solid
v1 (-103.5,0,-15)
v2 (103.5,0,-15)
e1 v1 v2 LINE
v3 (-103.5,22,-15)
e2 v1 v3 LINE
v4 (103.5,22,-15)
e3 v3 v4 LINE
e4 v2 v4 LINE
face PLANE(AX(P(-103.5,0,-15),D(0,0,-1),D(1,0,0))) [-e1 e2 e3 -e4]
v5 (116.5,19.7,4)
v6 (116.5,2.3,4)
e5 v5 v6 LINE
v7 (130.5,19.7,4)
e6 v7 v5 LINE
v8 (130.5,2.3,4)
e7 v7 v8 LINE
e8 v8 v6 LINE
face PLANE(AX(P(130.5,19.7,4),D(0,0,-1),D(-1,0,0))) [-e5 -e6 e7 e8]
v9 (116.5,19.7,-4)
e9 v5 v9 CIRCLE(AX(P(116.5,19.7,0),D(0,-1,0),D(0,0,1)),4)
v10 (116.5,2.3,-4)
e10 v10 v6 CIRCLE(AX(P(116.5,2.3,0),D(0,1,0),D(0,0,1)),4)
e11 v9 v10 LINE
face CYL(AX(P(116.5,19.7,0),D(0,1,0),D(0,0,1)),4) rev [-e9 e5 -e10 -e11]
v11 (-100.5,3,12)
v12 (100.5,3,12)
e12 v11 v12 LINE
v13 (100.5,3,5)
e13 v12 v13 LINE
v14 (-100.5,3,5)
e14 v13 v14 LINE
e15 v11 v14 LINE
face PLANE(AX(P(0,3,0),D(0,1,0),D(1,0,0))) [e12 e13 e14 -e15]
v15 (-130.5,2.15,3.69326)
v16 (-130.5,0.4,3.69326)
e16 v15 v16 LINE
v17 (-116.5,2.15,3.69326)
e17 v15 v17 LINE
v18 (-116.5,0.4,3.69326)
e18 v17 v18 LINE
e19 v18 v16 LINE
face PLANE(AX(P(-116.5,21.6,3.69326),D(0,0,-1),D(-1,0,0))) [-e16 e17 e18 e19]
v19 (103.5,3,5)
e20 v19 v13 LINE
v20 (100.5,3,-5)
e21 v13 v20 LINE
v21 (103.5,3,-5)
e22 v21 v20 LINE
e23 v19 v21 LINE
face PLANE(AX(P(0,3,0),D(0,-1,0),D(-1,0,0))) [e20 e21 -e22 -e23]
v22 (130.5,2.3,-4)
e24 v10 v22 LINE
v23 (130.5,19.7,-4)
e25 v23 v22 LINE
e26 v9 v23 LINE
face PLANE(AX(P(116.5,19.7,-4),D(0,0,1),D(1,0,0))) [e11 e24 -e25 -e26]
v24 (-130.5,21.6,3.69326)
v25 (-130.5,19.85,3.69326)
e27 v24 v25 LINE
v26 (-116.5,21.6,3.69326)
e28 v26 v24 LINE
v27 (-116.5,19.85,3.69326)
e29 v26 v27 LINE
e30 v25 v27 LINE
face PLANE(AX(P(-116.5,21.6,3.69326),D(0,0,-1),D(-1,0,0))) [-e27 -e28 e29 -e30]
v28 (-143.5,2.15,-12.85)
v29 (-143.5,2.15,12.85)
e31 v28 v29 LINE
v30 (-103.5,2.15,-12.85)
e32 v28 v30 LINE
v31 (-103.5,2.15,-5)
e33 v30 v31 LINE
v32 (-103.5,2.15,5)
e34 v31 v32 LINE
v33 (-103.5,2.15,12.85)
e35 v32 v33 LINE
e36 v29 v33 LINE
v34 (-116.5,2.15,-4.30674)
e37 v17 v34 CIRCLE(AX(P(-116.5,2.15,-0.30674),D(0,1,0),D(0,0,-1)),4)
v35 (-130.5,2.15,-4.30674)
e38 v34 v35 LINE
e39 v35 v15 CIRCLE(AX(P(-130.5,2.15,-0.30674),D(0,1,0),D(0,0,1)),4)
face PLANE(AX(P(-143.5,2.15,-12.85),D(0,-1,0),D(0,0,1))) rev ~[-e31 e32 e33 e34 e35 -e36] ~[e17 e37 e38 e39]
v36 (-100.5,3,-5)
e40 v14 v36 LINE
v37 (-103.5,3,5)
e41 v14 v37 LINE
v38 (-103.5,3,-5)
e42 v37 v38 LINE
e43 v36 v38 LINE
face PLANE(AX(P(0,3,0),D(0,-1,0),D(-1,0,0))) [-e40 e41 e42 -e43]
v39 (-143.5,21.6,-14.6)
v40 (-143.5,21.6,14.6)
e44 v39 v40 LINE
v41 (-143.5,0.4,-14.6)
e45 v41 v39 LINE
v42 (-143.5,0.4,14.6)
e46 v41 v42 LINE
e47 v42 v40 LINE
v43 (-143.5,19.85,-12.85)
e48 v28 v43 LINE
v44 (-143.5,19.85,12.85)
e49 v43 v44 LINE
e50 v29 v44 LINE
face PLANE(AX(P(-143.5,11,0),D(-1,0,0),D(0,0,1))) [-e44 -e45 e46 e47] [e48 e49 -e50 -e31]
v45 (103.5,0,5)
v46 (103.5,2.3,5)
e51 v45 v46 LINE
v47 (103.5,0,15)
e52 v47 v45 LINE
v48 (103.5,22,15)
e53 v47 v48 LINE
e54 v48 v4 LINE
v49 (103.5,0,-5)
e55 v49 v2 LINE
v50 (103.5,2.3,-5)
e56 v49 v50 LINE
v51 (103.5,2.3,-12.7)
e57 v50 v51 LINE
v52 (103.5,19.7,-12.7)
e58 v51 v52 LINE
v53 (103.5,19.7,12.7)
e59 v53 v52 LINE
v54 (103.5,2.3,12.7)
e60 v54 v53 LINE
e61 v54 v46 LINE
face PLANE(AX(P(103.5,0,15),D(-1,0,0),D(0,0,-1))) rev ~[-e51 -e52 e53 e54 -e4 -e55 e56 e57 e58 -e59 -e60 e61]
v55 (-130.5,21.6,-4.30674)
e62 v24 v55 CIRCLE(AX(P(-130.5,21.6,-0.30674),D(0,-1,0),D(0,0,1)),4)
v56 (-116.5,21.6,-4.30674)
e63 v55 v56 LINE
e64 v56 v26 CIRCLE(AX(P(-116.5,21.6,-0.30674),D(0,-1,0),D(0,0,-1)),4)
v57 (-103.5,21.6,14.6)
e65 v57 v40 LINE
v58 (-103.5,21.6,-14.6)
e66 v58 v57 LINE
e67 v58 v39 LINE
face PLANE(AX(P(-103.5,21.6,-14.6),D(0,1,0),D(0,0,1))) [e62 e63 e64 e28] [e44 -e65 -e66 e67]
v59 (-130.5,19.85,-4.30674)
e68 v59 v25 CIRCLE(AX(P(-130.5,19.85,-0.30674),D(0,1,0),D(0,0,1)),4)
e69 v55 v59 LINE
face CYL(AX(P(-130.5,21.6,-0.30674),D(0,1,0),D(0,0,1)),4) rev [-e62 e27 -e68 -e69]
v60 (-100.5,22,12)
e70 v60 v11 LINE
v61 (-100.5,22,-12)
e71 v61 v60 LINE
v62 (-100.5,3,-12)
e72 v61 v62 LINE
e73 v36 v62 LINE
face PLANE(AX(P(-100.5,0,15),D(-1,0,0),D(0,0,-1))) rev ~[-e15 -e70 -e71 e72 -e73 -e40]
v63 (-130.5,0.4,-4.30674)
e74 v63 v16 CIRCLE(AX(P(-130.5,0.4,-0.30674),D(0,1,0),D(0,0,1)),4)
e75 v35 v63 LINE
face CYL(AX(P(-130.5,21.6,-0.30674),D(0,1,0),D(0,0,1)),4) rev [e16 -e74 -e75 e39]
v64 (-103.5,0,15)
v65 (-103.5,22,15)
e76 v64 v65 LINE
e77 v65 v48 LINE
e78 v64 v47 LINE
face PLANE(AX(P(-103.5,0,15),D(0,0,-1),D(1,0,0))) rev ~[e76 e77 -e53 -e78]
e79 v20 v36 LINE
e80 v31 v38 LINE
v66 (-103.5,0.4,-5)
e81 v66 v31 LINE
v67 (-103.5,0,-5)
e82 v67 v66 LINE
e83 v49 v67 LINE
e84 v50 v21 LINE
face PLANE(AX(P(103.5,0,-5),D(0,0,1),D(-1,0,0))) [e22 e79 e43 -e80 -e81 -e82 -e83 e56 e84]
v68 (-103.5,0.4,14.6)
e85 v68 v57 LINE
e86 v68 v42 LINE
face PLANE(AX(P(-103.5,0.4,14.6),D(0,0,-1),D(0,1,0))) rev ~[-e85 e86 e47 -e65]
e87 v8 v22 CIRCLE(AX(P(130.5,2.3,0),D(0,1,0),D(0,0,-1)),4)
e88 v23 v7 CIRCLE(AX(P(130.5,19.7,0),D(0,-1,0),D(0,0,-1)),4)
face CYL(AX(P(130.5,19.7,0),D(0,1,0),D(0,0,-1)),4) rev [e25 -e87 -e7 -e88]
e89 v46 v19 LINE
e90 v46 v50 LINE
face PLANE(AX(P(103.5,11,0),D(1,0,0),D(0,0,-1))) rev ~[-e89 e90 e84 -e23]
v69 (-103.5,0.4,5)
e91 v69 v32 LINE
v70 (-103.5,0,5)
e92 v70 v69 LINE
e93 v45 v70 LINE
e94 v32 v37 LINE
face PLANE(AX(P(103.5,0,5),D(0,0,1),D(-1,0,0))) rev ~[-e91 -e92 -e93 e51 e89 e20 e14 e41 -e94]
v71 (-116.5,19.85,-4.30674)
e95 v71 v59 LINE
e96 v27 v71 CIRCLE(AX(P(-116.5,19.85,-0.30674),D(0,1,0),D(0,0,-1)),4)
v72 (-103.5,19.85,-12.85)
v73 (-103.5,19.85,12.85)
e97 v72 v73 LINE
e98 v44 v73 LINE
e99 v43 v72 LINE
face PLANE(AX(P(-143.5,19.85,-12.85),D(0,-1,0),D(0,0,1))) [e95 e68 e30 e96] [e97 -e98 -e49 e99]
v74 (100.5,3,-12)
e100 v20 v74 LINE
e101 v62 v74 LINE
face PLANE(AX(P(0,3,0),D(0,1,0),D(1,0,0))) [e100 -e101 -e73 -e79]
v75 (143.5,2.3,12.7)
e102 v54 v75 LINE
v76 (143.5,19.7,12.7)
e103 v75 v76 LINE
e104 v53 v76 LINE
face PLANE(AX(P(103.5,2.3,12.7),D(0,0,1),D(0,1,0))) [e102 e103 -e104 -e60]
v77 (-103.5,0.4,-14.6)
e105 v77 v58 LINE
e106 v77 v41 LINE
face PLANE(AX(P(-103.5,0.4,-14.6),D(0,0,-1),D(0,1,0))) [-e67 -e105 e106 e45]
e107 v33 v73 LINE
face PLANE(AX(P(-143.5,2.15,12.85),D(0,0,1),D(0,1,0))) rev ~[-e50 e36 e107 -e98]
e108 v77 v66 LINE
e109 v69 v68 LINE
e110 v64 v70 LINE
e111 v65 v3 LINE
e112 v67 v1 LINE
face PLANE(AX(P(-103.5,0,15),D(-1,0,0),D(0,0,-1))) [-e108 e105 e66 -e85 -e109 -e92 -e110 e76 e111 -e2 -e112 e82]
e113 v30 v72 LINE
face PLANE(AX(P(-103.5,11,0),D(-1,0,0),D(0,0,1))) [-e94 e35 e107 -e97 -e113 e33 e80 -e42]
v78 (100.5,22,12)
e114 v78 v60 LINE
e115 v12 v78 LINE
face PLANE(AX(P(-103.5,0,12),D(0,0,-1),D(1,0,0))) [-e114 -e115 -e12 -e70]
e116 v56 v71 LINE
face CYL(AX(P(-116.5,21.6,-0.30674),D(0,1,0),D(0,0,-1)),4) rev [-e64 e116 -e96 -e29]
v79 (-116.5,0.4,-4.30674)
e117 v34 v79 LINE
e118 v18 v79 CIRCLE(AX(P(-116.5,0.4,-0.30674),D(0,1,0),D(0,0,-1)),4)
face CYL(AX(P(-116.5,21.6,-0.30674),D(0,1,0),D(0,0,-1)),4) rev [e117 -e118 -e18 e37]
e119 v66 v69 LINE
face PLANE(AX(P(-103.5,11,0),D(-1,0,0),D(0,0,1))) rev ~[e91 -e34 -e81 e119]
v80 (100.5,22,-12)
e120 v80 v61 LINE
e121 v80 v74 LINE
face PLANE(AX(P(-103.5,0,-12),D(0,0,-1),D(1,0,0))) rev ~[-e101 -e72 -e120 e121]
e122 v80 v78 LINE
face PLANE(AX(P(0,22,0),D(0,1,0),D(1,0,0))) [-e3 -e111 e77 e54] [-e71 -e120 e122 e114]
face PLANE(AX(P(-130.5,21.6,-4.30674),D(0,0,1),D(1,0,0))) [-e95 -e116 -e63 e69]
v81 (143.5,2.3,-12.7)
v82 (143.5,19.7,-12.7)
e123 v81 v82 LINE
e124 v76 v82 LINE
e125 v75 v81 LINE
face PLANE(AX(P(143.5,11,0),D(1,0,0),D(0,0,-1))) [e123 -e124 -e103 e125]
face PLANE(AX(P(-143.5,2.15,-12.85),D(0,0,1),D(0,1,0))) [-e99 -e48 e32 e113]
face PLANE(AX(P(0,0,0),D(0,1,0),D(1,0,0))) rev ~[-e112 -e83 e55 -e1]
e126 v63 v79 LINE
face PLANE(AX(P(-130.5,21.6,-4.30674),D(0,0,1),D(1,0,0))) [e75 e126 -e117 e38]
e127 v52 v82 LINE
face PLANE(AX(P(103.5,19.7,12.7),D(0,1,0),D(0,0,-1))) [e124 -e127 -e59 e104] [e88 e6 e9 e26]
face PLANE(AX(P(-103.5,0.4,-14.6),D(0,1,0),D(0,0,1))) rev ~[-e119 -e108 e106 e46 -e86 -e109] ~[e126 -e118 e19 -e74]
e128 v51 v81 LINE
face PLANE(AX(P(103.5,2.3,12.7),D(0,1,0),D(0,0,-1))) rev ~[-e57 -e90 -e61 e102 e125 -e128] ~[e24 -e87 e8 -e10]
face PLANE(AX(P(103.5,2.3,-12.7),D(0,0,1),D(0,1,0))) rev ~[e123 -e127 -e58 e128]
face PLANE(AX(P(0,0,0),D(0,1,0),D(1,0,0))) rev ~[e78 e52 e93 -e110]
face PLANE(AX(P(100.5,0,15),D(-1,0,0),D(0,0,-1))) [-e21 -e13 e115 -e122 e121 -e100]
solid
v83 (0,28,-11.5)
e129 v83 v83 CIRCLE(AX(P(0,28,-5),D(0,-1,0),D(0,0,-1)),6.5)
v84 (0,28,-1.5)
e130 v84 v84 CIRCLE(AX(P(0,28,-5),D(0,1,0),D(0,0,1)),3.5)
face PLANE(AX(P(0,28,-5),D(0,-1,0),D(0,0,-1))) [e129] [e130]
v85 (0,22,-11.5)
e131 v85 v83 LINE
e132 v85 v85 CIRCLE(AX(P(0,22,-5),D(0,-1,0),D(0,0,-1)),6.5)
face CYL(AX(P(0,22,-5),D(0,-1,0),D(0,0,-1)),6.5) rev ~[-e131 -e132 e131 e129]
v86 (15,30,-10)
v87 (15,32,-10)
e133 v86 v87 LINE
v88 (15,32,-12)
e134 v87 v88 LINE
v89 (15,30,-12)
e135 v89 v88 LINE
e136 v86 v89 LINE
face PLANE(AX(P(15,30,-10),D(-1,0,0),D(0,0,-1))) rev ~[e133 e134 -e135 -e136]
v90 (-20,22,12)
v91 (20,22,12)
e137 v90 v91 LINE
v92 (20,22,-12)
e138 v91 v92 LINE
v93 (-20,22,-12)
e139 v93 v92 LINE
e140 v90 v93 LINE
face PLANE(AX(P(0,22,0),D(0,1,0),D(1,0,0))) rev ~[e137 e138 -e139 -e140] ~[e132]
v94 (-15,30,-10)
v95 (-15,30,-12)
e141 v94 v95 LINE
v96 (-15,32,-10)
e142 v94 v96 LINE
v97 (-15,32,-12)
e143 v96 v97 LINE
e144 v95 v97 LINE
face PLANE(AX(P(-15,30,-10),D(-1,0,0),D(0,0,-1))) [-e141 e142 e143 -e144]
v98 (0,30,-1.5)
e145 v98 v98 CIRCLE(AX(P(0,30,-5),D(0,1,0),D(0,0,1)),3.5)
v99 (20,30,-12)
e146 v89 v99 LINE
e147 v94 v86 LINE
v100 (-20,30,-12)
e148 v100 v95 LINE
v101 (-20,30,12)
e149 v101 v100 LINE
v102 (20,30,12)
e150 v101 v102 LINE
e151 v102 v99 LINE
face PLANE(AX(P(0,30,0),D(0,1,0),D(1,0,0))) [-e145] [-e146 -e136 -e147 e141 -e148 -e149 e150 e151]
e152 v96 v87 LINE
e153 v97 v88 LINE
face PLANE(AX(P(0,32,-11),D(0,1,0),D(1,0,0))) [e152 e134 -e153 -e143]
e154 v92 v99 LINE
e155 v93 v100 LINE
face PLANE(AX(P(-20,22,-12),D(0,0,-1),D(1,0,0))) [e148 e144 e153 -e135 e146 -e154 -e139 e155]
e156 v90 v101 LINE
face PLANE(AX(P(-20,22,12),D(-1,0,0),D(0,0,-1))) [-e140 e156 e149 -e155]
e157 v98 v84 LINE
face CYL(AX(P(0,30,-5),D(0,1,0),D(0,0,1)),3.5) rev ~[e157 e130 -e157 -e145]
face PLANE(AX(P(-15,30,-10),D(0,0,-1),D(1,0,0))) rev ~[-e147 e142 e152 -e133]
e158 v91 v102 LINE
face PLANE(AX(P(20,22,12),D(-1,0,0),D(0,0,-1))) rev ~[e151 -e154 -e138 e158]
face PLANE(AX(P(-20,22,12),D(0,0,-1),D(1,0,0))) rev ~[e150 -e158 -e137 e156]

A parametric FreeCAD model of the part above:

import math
import FreeCAD as App
import Part
import Sketcher

V = App.Vector
Q = App.Units.Quantity


def faces_at(feature, points):
    """Names of the faces that lie closest to the given points."""
    faces = feature.Shape.Faces
    near = lambda p: min(range(len(faces)), key=lambda i: faces[i].distToShape(Part.Vertex(*p))[0])
    return sorted({f"Face{near(p) + 1}" for p in points})


def add_polygon(sketch, points):
    """Adds a closed chain of lines whose ends are joined by coincident constraints."""
    first, n = sketch.GeometryCount, len(points)
    for a, b in zip(points, points[1:] + points[:1]):
        sketch.addGeometry(Part.LineSegment(App.Vector(*a, 0), App.Vector(*b, 0)), False)
    for i in range(n):
        sketch.addConstraint(Sketcher.Constraint("Coincident", first + i, 2, first + (i + 1) % n, 1))

doc = App.newDocument("Part")
body = doc.addObject("PartDesign::Body", "Body")

# Sketch on XZ plane
sketch1 = doc.addObject("Sketcher::SketchObject", "Sketch")
body.addObject(sketch1)
sketch1.AttachmentSupport = (doc.XZ_Plane, [""])
sketch1.MapMode = "FlatFace"
add_polygon(sketch1, [(-104, -15), (-104, 15), (104, 15), (104, -15)])  # lines 0-3
sketch1.addConstraint(Sketcher.Constraint("Vertical", 0))
sketch1.addConstraint(Sketcher.Constraint("Horizontal", 1))
sketch1.addConstraint(Sketcher.Constraint("Vertical", 2))
sketch1.addConstraint(Sketcher.Constraint("Horizontal", 3))
sketch1.addConstraint(Sketcher.Constraint("Symmetric", 0, 2, 2, 2, -1, 1))
sketch1.addConstraint(Sketcher.Constraint("DistanceX", 1, 1, 1, 2, Q("207 mm")))
sketch1.addConstraint(Sketcher.Constraint("DistanceY", 0, 1, 0, 2, Q("30 mm")))
pad1 = doc.addObject("PartDesign::Pad", "Pad")
body.addObject(pad1)
pad1.Profile = sketch1
pad1.Length = 22
pad1.Reversed = True
doc.recompute()

thickness = doc.addObject("PartDesign::Thickness", "Thickness")
body.addObject(thickness)
thickness.Base = (pad1, faces_at(pad1, [(0, 22, 0)]))
thickness.Value = 3
thickness.Reversed = True
thickness.Join = "Intersection"

# Sketch on XZ plane
sketch2 = doc.addObject("Sketcher::SketchObject", "Sketch001")
body.addObject(sketch2)
sketch2.AttachmentSupport = (doc.XZ_Plane, [""])
sketch2.MapMode = "FlatFace"
add_polygon(sketch2, [(104, -5), (104, 5), (-104, 5), (-104, -5)])  # lines 0-3
sketch2.addConstraint(Sketcher.Constraint("Vertical", 0))
sketch2.addConstraint(Sketcher.Constraint("Horizontal", 1))
sketch2.addConstraint(Sketcher.Constraint("Vertical", 2))
sketch2.addConstraint(Sketcher.Constraint("Horizontal", 3))
sketch2.addConstraint(Sketcher.Constraint("Symmetric", 0, 2, 2, 2, -1, 1))
sketch2.addConstraint(Sketcher.Constraint("DistanceX", 1, 2, 1, 1, Q("207 mm")))
sketch2.addConstraint(Sketcher.Constraint("DistanceY", 0, 1, 0, 2, Q("10 mm")))
pocket1 = doc.addObject("PartDesign::Pocket", "Pocket")
body.addObject(pocket1)
pocket1.Profile = sketch2
pocket1.Length = 3

# Sketch on YZ plane
sketch3 = doc.addObject("Sketcher::SketchObject", "Sketch002")
body.addObject(sketch3)
sketch3.AttachmentSupport = (doc.YZ_Plane, [""])
sketch3.MapMode = "FlatFace"
sketch3.AttachmentOffset = App.Placement(V(0, 0, -103.5), App.Rotation())
add_polygon(sketch3, [(22, -15), (0, -15), (0, 15), (22, 15)])  # lines 0-3
sketch3.addConstraint(Sketcher.Constraint("Horizontal", 0))
sketch3.addConstraint(Sketcher.Constraint("Vertical", 1))
sketch3.addConstraint(Sketcher.Constraint("Horizontal", 2))
sketch3.addConstraint(Sketcher.Constraint("Vertical", 3))
sketch3.addConstraint(Sketcher.Constraint("DistanceX", 0, 2, 0, 1, Q("21.2 mm")))
sketch3.addConstraint(Sketcher.Constraint("DistanceY", 1, 1, 1, 2, Q("29.2 mm")))
sketch3.addConstraint(Sketcher.Constraint("DistanceX", -1, 1, 0, 2, Q("0.4 mm")))
sketch3.addConstraint(Sketcher.Constraint("DistanceY", 0, 2, -1, 1, Q("14.6 mm")))
pad2 = doc.addObject("PartDesign::Pad", "Pad001")
body.addObject(pad2)
pad2.Profile = sketch3
pad2.Length = 40
pad2.Reversed = True

# Sketch on YZ plane
sketch4 = doc.addObject("Sketcher::SketchObject", "Sketch003")
body.addObject(sketch4)
sketch4.AttachmentSupport = (doc.YZ_Plane, [""])
sketch4.MapMode = "FlatFace"
sketch4.AttachmentOffset = App.Placement(V(0, 0, -143.5), App.Rotation())
add_polygon(sketch4, [(20, -13), (2, -13), (2, 13), (20, 13)])  # lines 0-3
sketch4.addConstraint(Sketcher.Constraint("Horizontal", 0))
sketch4.addConstraint(Sketcher.Constraint("Vertical", 1))
sketch4.addConstraint(Sketcher.Constraint("Horizontal", 2))
sketch4.addConstraint(Sketcher.Constraint("Vertical", 3))
sketch4.addConstraint(Sketcher.Constraint("DistanceX", 0, 2, 0, 1, Q("17.7 mm")))
sketch4.addConstraint(Sketcher.Constraint("DistanceY", 1, 1, 1, 2, Q("25.7 mm")))
sketch4.addConstraint(Sketcher.Constraint("DistanceX", -1, 1, 0, 2, Q("2.15 mm")))
sketch4.addConstraint(Sketcher.Constraint("DistanceY", 0, 2, -1, 1, Q("12.85 mm")))
pocket2 = doc.addObject("PartDesign::Pocket", "Pocket001")
body.addObject(pocket2)
pocket2.Profile = sketch4
pocket2.Length = 40
pocket2.Reversed = True

# Sketch on XZ plane
sketch5 = doc.addObject("Sketcher::SketchObject", "Sketch004")
body.addObject(sketch5)
sketch5.AttachmentSupport = (doc.XZ_Plane, [""])
sketch5.MapMode = "FlatFace"
sketch5.AttachmentOffset = App.Placement(V(0, 0, -21.6), App.Rotation())
sketch5.addGeometry(Part.LineSegment(V(-116.5, -4.3, 0), V(-130.5, -4.3, 0)), False)
sketch5.addGeometry(Part.ArcOfCircle(Part.Circle(V(-130.5, -0.3, 0), V(0, 0, 1), 4), math.radians(90), math.radians(270)), False)
sketch5.addGeometry(Part.LineSegment(V(-130.5, 3.7, 0), V(-116.5, 3.7, 0)), False)
sketch5.addGeometry(Part.ArcOfCircle(Part.Circle(V(-116.5, -0.3, 0), V(0, 0, 1), 4), math.radians(-90), math.radians(90)), False)
sketch5.addConstraint(Sketcher.Constraint("Tangent", 0, 2, 1, 2))
sketch5.addConstraint(Sketcher.Constraint("Tangent", 1, 1, 2, 1))
sketch5.addConstraint(Sketcher.Constraint("Tangent", 2, 2, 3, 2))
sketch5.addConstraint(Sketcher.Constraint("Tangent", 3, 1, 0, 1))
sketch5.addConstraint(Sketcher.Constraint("Horizontal", 0))
sketch5.addConstraint(Sketcher.Constraint("Horizontal", 2))
sketch5.addConstraint(Sketcher.Constraint("Radius", 1, Q("4 mm")))
sketch5.addConstraint(Sketcher.Constraint("DistanceX", 0, 2, 0, 1, Q("14 mm")))
sketch5.addConstraint(Sketcher.Constraint("DistanceX", 1, 3, -1, 1, Q("130.5 mm")))
sketch5.addConstraint(Sketcher.Constraint("DistanceY", 1, 3, -1, 1, Q("0.30674 mm")))
pocket3 = doc.addObject("PartDesign::Pocket", "Pocket002")
body.addObject(pocket3)
pocket3.Profile = sketch5
pocket3.Type = "ThroughAll"
pocket3.Reversed = True

# Sketch on YZ plane
sketch6 = doc.addObject("Sketcher::SketchObject", "Sketch005")
body.addObject(sketch6)
sketch6.AttachmentSupport = (doc.YZ_Plane, [""])
sketch6.MapMode = "FlatFace"
sketch6.AttachmentOffset = App.Placement(V(0, 0, 103.5), App.Rotation())
add_polygon(sketch6, [(20, 13), (2, 13), (2, -13), (20, -13)])  # lines 0-3
sketch6.addConstraint(Sketcher.Constraint("Horizontal", 0))
sketch6.addConstraint(Sketcher.Constraint("Vertical", 1))
sketch6.addConstraint(Sketcher.Constraint("Horizontal", 2))
sketch6.addConstraint(Sketcher.Constraint("Vertical", 3))
sketch6.addConstraint(Sketcher.Constraint("DistanceX", 0, 2, 0, 1, Q("17.4 mm")))
sketch6.addConstraint(Sketcher.Constraint("DistanceY", 1, 2, 1, 1, Q("25.4 mm")))
sketch6.addConstraint(Sketcher.Constraint("DistanceX", -1, 1, 0, 2, Q("2.3 mm")))
sketch6.addConstraint(Sketcher.Constraint("DistanceY", -1, 1, 0, 2, Q("12.7 mm")))
pad3 = doc.addObject("PartDesign::Pad", "Pad002")
body.addObject(pad3)
pad3.Profile = sketch6
pad3.Length = 40

# Sketch on XZ plane
sketch7 = doc.addObject("Sketcher::SketchObject", "Sketch006")
body.addObject(sketch7)
sketch7.AttachmentSupport = (doc.XZ_Plane, [""])
sketch7.MapMode = "FlatFace"
sketch7.AttachmentOffset = App.Placement(V(0, 0, -19.7), App.Rotation())
sketch7.addGeometry(Part.LineSegment(V(130.5, -4, 0), V(116.5, -4, 0)), False)
sketch7.addGeometry(Part.ArcOfCircle(Part.Circle(V(116.5, 0, 0), V(0, 0, 1), 4), math.radians(90), math.radians(270)), False)
sketch7.addGeometry(Part.LineSegment(V(116.5, 4, 0), V(130.5, 4, 0)), False)
sketch7.addGeometry(Part.ArcOfCircle(Part.Circle(V(130.5, 0, 0), V(0, 0, 1), 4), math.radians(-90), math.radians(90)), False)
sketch7.addConstraint(Sketcher.Constraint("Tangent", 0, 2, 1, 2))
sketch7.addConstraint(Sketcher.Constraint("Tangent", 1, 1, 2, 1))
sketch7.addConstraint(Sketcher.Constraint("Tangent", 2, 2, 3, 2))
sketch7.addConstraint(Sketcher.Constraint("Tangent", 3, 1, 0, 1))
sketch7.addConstraint(Sketcher.Constraint("Horizontal", 0))
sketch7.addConstraint(Sketcher.Constraint("Horizontal", 2))
sketch7.addConstraint(Sketcher.Constraint("PointOnObject", 1, 3, -1))
sketch7.addConstraint(Sketcher.Constraint("Radius", 1, Q("4 mm")))
sketch7.addConstraint(Sketcher.Constraint("DistanceX", 0, 2, 0, 1, Q("14 mm")))
sketch7.addConstraint(Sketcher.Constraint("DistanceX", -1, 1, 1, 3, Q("116.5 mm")))
pocket4 = doc.addObject("PartDesign::Pocket", "Pocket003")
body.addObject(pocket4)
pocket4.Profile = sketch7
pocket4.Type = "ThroughAll"
pocket4.Reversed = True
body2 = doc.addObject("PartDesign::Body", "Body001")

# Sketch on XZ plane
sketch8 = doc.addObject("Sketcher::SketchObject", "Sketch007")
body2.addObject(sketch8)
sketch8.AttachmentSupport = (doc.getObject("XZ_Plane001"), [""])
sketch8.MapMode = "FlatFace"
sketch8.AttachmentOffset = App.Placement(V(0, 0, -22), App.Rotation())
add_polygon(sketch8, [(-20, -12), (-20, 12), (20, 12), (20, -12)])  # lines 0-3
sketch8.addConstraint(Sketcher.Constraint("Vertical", 0))
sketch8.addConstraint(Sketcher.Constraint("Horizontal", 1))
sketch8.addConstraint(Sketcher.Constraint("Vertical", 2))
sketch8.addConstraint(Sketcher.Constraint("Horizontal", 3))
sketch8.addConstraint(Sketcher.Constraint("Symmetric", 0, 2, 2, 2, -1, 1))
sketch8.addConstraint(Sketcher.Constraint("DistanceX", 1, 1, 1, 2, Q("40 mm")))
sketch8.addConstraint(Sketcher.Constraint("DistanceY", 0, 1, 0, 2, Q("24 mm")))
pad4 = doc.addObject("PartDesign::Pad", "Pad003")
body2.addObject(pad4)
pad4.Profile = sketch8
pad4.Length = 8
pad4.Reversed = True

# Sketch on XZ plane
sketch9 = doc.addObject("Sketcher::SketchObject", "Sketch008")
body2.addObject(sketch9)
sketch9.AttachmentSupport = (doc.getObject("XZ_Plane001"), [""])
sketch9.MapMode = "FlatFace"
sketch9.AttachmentOffset = App.Placement(V(0, 0, -30), App.Rotation())
sketch9.addGeometry(Part.Circle(V(0, -5, 0), V(0, 0, 1), 3.5), False)
sketch9.addConstraint(Sketcher.Constraint("PointOnObject", 0, 3, -2))
sketch9.addConstraint(Sketcher.Constraint("Diameter", 0, Q("7 mm")))
sketch9.addConstraint(Sketcher.Constraint("DistanceY", 0, 3, -1, 1, Q("5 mm")))
pocket5 = doc.addObject("PartDesign::Pocket", "Pocket004")
body2.addObject(pocket5)
pocket5.Profile = sketch9
pocket5.Length = 8
pocket5.Reversed = True

# Sketch on XZ plane
sketch10 = doc.addObject("Sketcher::SketchObject", "Sketch009")
body2.addObject(sketch10)
sketch10.AttachmentSupport = (doc.getObject("XZ_Plane001"), [""])
sketch10.MapMode = "FlatFace"
sketch10.AttachmentOffset = App.Placement(V(0, 0, -22), App.Rotation())
sketch10.addGeometry(Part.Circle(V(0, -5, 0), V(0, 0, 1), 6), False)
sketch10.addConstraint(Sketcher.Constraint("PointOnObject", 0, 3, -2))
sketch10.addConstraint(Sketcher.Constraint("Diameter", 0, Q("13 mm")))
sketch10.addConstraint(Sketcher.Constraint("DistanceY", 0, 3, -1, 1, Q("5 mm")))
pocket6 = doc.addObject("PartDesign::Pocket", "Pocket005")
body2.addObject(pocket6)
pocket6.Profile = sketch10
pocket6.Length = 6

# Sketch on XZ plane
sketch11 = doc.addObject("Sketcher::SketchObject", "Sketch010")
body2.addObject(sketch11)
sketch11.AttachmentSupport = (doc.getObject("XZ_Plane001"), [""])
sketch11.MapMode = "FlatFace"
sketch11.AttachmentOffset = App.Placement(V(0, 0, -30), App.Rotation())
add_polygon(sketch11, [(-15, -12), (-15, -10), (15, -10), (15, -12)])  # lines 0-3
sketch11.addConstraint(Sketcher.Constraint("Vertical", 0))
sketch11.addConstraint(Sketcher.Constraint("Horizontal", 1))
sketch11.addConstraint(Sketcher.Constraint("Vertical", 2))
sketch11.addConstraint(Sketcher.Constraint("Horizontal", 3))
sketch11.addConstraint(Sketcher.Constraint("DistanceX", 1, 1, 1, 2, Q("30 mm")))
sketch11.addConstraint(Sketcher.Constraint("DistanceY", 0, 1, 0, 2, Q("2 mm")))
sketch11.addConstraint(Sketcher.Constraint("DistanceX", 0, 2, -1, 1, Q("15 mm")))
sketch11.addConstraint(Sketcher.Constraint("DistanceY", 0, 2, -1, 1, Q("10 mm")))
pad5 = doc.addObject("PartDesign::Pad", "Pad004")
body2.addObject(pad5)
pad5.Profile = sketch11
pad5.Length = 2
pad5.Reversed = True

doc.recompute()
